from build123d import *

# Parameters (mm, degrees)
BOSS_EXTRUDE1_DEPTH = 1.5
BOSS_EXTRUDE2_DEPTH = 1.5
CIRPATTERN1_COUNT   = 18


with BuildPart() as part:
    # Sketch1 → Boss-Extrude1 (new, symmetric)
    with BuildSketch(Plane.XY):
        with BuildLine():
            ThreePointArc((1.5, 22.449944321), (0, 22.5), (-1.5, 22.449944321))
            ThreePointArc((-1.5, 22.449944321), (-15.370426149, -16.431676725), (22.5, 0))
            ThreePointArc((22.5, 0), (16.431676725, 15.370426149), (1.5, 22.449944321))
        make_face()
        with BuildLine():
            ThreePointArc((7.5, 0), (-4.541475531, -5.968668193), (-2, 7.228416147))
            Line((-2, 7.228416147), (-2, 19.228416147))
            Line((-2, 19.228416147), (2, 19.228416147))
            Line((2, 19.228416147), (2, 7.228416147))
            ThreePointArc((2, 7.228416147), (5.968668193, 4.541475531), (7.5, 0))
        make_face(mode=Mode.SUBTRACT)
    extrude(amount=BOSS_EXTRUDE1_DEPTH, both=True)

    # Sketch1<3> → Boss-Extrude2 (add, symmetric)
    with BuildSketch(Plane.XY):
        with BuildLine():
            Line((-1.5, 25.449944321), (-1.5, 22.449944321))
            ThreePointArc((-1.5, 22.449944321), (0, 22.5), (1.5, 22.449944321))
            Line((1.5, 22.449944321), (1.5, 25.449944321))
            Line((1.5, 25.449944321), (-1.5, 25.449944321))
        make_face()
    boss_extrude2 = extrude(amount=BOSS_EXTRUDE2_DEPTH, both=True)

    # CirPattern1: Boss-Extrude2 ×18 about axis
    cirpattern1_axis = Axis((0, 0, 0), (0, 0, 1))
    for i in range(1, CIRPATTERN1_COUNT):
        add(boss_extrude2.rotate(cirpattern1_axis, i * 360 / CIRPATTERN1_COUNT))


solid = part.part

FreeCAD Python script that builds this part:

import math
import FreeCAD as App
import Part
import Sketcher
from FreeCAD import Vector
Q = App.Units.Quantity

doc = App.newDocument("Part")
params = doc.addObject("Spreadsheet::Sheet", "Params")
for row, (alias, value) in enumerate([
    ("sketch1_radius", "22.5 mm"),
    ("sketch1_radius2", "7.5 mm"),
    ("sketch1_width", "4 mm"),
    ("sketch1_height", "12 mm"),
    ("pad1_length", "3 mm"),
    ("sketch2_radius", "22.5 mm"),
    ("sketch2_width", "3 mm"),
    ("pad2_length", "3 mm"),
], start=1):
    params.set(f"A{row}", alias)
    params.set(f"B{row}", "=" + value)
    params.setAlias(f"B{row}", alias)

body = doc.addObject("PartDesign::Body", "Body")

# Sketch on XY plane
sketch1 = doc.addObject("Sketcher::SketchObject", "Sketch")
body.addObject(sketch1)
sketch1.AttachmentSupport = (doc.XY_Plane, [""])
sketch1.MapMode = "FlatFace"
sketch1.addGeometry([
    Part.ArcOfCircle(Part.Circle(Vector(0, 0, 0), Vector(0, 0, 1), 22.5), math.radians(86.18), math.radians(93.82)),  # 0
    Part.ArcOfCircle(Part.Circle(Vector(0, 0, 0), Vector(0, 0, 1), 22.5), math.radians(94), math.radians(360)),  # 1
    Part.ArcOfCircle(Part.Circle(Vector(0, 0, 0), Vector(0, 0, 1), 22.5), math.radians(0), math.radians(86)),  # 2
    Part.ArcOfCircle(Part.Circle(Vector(0, 0, 0), Vector(0, 0, 1), 7.5), math.radians(0), math.radians(75)),  # 3
    Part.ArcOfCircle(Part.Circle(Vector(0, 0, 0), Vector(0, 0, 1), 7.5), math.radians(105), math.radians(360)),  # 4
    Part.LineSegment(Vector(-2, 7.2, 0), Vector(-2, 19.2, 0)),  # 5
    Part.LineSegment(Vector(-2, 19.2, 0), Vector(2, 19.2, 0)),  # 6
    Part.LineSegment(Vector(2, 19.2, 0), Vector(2, 7.2, 0)),  # 7
], False)
sketch1.addConstraint([
    Sketcher.Constraint("Tangent", 0, 2, 1, 1),
    Sketcher.Constraint("Tangent", 1, 2, 2, 1),
    Sketcher.Constraint("Tangent", 2, 2, 0, 1),
    Sketcher.Constraint("Tangent", 3, 1, 4, 2),
    Sketcher.Constraint("Coincident", 4, 1, 5, 1),
    Sketcher.Constraint("Coincident", 5, 2, 6, 1),
    Sketcher.Constraint("Coincident", 6, 2, 7, 1),
    Sketcher.Constraint("Coincident", 7, 2, 3, 2),
    Sketcher.Constraint("Vertical", 5),
    Sketcher.Constraint("Horizontal", 6),
    Sketcher.Constraint("Vertical", 7),
    Sketcher.Constraint("Coincident", 0, 3, -1, 1),
    Sketcher.Constraint("Coincident", 3, 3, -1, 1),
    Sketcher.Constraint("Equal", 3, 4),
    Sketcher.Constraint("PointOnObject", 1, 2, -1),
    Sketcher.Constraint("PointOnObject", 3, 1, -1),
    Sketcher.Constraint("Horizontal", 0, 2, 2, 2),
    Sketcher.Constraint("Horizontal", 4, 1, 7, 2),
    Sketcher.Constraint("Radius", 0, Q("22.5 mm")),
    Sketcher.Constraint("Radius", 3, Q("7.5 mm")),
    Sketcher.Constraint("DistanceX", 6, 1, 6, 2, Q("4 mm")),
    Sketcher.Constraint("DistanceY", 5, 1, 5, 2, Q("12 mm")),
    Sketcher.Constraint("DistanceX", 0, 2, 2, 2, Q("3 mm")),
])
sketch1.setExpression("Constraints[18]", "Params.sketch1_radius")
sketch1.setExpression("Constraints[19]", "Params.sketch1_radius2")
sketch1.setExpression("Constraints[20]", "Params.sketch1_width")
sketch1.setExpression("Constraints[21]", "Params.sketch1_height")
pad1 = doc.addObject("PartDesign::Pad", "Pad")
body.addObject(pad1)
pad1.Profile = sketch1
pad1.setExpression("Length", "Params.pad1_length")
pad1.Midplane = True

# Sketch on XY plane
sketch2 = doc.addObject("Sketcher::SketchObject", "Sketch001")
body.addObject(sketch2)
sketch2.AttachmentSupport = (doc.XY_Plane, [""])
sketch2.MapMode = "FlatFace"
sketch2.addGeometry([
    Part.LineSegment(Vector(-1.5, 25.4, 0), Vector(-1.5, 22.4, 0)),
    Part.ArcOfCircle(Part.Circle(Vector(0, 0, 0), Vector(0, 0, 1), 22.5), math.radians(86.18), math.radians(93.82)),
    Part.LineSegment(Vector(1.5, 22.4, 0), Vector(1.5, 25.4, 0)),
    Part.LineSegment(Vector(1.5, 25.4, 0), Vector(-1.5, 25.4, 0)),
], False)
sketch2.addConstraint([
    Sketcher.Constraint("Coincident", 0, 2, 1, 2),
    Sketcher.Constraint("Coincident", 1, 1, 2, 1),
    Sketcher.Constraint("Coincident", 2, 2, 3, 1),
    Sketcher.Constraint("Coincident", 3, 2, 0, 1),
    Sketcher.Constraint("Vertical", 0),
    Sketcher.Constraint("Vertical", 2),
    Sketcher.Constraint("Horizontal", 3),
    Sketcher.Constraint("Coincident", 1, 3, -1, 1),
    Sketcher.Constraint("Horizontal", 0, 2, 1, 1),
    Sketcher.Constraint("Equal", 3, 0),
    Sketcher.Constraint("Radius", 1, Q("22.5 mm")),
    Sketcher.Constraint("DistanceX", 3, 2, 3, 1, Q("3 mm")),
])
sketch2.setExpression("Constraints[10]", "Params.sketch2_radius")
sketch2.setExpression("Constraints[11]", "Params.sketch2_width")
pad2 = doc.addObject("PartDesign::Pad", "Pad001")
body.addObject(pad2)
pad2.Profile = sketch2
pad2.setExpression("Length", "Params.pad2_length")
pad2.Midplane = True
doc.recompute()

polarpattern = doc.addObject("PartDesign::PolarPattern", "PolarPattern")
body.addObject(polarpattern)
polarpattern.Originals = [pad2]
polarpattern.Axis = (doc.Z_Axis, [""])
polarpattern.Angle = 360
polarpattern.Occurrences = 18
body.Tip = polarpattern

doc.recompute()
